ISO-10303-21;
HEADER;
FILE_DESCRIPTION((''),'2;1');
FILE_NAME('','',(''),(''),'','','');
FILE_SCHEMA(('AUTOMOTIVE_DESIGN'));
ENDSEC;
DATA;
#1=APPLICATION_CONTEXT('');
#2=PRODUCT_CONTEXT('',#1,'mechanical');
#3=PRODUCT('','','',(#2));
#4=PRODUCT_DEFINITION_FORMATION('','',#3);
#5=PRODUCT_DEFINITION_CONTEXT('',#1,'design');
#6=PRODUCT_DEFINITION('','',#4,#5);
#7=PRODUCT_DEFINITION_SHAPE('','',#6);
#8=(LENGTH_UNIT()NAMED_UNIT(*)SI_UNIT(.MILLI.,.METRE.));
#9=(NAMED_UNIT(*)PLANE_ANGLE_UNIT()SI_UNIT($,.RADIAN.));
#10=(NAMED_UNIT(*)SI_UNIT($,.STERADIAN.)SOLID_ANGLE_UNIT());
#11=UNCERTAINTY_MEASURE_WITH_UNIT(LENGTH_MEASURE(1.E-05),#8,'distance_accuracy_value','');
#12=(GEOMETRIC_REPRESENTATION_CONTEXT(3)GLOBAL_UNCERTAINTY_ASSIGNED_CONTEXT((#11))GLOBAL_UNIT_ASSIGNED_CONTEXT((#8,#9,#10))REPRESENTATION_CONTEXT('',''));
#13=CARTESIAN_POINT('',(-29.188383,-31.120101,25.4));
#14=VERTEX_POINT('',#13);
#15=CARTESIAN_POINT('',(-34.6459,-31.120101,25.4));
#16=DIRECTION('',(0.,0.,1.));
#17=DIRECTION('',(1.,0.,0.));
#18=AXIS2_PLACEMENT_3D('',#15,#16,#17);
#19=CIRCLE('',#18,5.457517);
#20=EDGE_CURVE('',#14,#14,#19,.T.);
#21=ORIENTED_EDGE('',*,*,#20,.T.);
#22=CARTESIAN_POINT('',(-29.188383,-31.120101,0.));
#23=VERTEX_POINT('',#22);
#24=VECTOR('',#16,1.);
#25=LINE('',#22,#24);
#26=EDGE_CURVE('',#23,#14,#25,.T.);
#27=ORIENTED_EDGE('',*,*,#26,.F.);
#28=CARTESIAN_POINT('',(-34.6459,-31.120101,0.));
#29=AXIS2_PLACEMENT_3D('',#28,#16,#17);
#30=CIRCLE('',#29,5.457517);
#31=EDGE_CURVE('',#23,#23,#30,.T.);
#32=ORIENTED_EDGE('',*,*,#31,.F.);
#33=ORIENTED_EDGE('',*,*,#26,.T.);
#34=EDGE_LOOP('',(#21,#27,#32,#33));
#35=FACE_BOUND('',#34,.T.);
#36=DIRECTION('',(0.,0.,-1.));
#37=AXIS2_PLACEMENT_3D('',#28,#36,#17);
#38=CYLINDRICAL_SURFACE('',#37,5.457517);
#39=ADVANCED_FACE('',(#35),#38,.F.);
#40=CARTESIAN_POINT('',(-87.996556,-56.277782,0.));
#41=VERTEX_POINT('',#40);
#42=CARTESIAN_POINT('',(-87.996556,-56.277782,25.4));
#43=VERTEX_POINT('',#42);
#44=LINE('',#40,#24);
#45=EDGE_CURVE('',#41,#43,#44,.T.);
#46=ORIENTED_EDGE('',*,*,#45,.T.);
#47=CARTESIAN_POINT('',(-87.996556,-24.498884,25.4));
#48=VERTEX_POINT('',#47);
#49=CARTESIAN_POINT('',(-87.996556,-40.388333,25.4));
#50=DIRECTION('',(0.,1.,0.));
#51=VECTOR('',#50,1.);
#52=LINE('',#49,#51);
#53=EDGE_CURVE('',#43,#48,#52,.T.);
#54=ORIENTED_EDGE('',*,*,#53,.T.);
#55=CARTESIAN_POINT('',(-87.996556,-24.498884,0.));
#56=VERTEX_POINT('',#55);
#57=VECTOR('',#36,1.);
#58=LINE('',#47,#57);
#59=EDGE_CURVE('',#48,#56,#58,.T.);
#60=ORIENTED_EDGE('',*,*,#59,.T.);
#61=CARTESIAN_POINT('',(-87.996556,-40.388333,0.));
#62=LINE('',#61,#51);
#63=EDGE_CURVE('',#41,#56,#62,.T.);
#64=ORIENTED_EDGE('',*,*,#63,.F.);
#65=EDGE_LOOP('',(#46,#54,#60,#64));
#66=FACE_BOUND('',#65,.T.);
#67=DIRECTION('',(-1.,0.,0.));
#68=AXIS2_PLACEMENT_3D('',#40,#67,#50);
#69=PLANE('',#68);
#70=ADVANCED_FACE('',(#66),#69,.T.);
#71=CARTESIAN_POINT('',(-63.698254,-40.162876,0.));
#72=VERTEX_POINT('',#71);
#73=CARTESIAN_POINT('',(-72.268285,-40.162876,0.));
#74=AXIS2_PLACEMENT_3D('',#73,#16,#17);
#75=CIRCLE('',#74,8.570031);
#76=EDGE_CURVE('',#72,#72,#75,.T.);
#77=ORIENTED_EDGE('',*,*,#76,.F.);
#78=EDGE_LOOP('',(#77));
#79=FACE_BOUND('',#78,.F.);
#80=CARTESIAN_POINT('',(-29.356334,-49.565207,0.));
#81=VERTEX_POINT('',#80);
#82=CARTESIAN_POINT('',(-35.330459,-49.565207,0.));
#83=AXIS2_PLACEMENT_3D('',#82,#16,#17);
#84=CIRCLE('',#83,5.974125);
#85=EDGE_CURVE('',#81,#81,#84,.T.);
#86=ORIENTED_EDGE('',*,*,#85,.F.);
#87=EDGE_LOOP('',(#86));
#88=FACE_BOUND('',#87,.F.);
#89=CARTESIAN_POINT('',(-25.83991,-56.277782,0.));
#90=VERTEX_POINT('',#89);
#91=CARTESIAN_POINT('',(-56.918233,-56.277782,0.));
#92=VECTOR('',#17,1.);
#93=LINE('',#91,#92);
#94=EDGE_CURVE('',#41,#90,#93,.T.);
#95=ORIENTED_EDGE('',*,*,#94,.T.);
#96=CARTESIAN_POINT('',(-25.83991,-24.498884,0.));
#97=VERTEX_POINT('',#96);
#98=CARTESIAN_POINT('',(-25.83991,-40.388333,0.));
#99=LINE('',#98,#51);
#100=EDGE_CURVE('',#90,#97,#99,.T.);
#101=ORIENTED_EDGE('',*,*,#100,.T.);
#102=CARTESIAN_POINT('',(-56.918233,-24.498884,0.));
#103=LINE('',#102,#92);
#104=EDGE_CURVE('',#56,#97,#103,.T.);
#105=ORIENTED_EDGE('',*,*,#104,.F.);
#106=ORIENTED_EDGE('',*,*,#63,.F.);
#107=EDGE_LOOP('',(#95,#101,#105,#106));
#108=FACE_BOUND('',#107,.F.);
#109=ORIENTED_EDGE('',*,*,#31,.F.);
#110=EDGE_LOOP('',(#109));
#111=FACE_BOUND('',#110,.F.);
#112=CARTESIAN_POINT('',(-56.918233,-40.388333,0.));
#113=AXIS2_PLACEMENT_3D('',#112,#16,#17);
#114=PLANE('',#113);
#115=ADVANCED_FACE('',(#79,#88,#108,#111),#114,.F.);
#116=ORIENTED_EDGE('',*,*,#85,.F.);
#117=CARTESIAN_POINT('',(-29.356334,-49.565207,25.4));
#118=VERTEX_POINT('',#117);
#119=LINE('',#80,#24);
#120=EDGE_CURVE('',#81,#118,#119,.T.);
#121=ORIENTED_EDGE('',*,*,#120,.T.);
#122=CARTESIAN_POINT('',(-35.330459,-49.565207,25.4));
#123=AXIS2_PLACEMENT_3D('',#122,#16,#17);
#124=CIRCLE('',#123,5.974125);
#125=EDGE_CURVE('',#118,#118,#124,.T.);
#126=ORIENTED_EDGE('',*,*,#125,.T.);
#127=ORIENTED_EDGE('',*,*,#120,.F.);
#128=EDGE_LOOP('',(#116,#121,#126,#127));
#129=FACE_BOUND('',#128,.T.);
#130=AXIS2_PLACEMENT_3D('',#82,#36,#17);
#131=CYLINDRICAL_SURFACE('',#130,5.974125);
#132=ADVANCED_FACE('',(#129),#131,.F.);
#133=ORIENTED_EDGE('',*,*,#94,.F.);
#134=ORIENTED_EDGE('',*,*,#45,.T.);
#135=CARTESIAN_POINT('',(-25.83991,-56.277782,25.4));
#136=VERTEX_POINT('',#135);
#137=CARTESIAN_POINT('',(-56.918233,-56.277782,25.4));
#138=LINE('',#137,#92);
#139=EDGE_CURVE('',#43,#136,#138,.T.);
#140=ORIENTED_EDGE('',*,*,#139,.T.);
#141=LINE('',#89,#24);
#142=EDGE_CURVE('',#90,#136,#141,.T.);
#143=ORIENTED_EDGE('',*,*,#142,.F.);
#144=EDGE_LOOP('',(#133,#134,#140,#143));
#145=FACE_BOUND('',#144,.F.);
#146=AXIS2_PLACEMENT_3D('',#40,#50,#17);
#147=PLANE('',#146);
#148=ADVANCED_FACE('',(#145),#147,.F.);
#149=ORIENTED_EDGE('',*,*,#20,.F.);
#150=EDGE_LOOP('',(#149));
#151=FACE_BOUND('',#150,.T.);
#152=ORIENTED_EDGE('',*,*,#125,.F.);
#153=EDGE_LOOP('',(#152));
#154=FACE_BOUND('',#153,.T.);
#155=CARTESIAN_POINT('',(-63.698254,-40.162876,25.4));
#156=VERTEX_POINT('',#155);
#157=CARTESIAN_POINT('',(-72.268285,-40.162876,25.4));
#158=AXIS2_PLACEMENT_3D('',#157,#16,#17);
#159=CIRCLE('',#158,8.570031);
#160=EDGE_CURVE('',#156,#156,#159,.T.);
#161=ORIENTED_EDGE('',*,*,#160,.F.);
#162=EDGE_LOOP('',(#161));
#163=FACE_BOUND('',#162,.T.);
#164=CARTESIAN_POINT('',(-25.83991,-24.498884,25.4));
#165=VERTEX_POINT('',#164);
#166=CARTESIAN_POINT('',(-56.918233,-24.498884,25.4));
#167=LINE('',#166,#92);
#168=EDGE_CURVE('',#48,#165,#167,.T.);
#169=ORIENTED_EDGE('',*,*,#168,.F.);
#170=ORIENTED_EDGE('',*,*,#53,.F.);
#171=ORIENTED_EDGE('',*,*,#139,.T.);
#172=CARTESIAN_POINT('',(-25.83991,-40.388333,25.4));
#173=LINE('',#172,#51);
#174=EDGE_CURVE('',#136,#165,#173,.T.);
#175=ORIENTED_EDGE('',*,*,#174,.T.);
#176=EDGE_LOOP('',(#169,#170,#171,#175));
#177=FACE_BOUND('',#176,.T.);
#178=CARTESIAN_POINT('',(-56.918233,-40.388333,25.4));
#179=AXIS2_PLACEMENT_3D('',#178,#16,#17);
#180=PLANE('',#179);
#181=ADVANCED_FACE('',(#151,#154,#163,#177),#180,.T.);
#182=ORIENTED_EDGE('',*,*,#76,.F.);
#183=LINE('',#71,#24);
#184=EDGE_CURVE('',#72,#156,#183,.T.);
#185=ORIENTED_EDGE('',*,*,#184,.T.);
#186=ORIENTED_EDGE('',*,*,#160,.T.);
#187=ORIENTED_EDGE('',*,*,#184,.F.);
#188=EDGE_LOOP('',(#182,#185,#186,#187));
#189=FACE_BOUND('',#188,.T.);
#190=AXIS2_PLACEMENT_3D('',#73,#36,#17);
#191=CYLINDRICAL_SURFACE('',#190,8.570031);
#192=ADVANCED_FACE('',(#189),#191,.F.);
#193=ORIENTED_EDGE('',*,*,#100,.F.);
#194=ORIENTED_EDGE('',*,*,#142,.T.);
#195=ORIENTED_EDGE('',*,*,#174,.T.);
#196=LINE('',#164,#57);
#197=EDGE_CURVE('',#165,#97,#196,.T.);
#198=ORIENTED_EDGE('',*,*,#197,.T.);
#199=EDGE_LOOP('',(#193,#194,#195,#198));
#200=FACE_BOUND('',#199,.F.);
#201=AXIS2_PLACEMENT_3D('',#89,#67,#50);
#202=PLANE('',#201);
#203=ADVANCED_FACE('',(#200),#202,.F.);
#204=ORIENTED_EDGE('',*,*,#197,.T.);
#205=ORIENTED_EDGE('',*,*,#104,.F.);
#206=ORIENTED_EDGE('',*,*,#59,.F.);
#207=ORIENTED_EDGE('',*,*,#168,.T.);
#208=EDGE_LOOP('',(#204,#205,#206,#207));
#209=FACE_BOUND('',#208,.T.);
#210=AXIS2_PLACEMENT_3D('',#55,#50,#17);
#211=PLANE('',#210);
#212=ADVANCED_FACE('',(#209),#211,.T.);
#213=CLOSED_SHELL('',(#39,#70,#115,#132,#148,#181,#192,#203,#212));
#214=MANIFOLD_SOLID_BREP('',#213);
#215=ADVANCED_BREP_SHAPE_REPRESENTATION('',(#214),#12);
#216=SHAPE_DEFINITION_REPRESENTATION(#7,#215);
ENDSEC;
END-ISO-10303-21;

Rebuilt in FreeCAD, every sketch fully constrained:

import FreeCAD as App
import Part
import Sketcher

V = App.Vector
Q = App.Units.Quantity

doc = App.newDocument("Part")
body = doc.addObject("PartDesign::Body", "Body")

sketch1 = body.newObject("Sketcher::SketchObject", "Sketch")
sketch1.AttachmentSupport = (doc.getObject("XY_Plane"), [""])
sketch1.MapMode = "FlatFace"
sketch1.addGeometry([
    Part.LineSegment(V(-87.996556, -24.498884, 0), V(-87.996556, -56.277782, 0)),
    Part.LineSegment(V(-87.996556, -56.277782, 0), V(-25.83991, -56.277782, 0)),
    Part.LineSegment(V(-25.83991, -56.277782, 0), V(-25.83991, -24.498884, 0)),
    Part.LineSegment(V(-25.83991, -24.498884, 0), V(-87.996556, -24.498884, 0)),
    Part.Circle(V(-35.330459, -49.565207, 0), V(0, 0, 1), 5.974125),
    Part.Circle(V(-72.268285, -40.162876, 0), V(0, 0, 1), 8.570031),
    Part.Circle(V(-34.6459, -31.120101, 0), V(0, 0, 1), 5.457517),
], False)
sketch1.addConstraint([
    Sketcher.Constraint("Coincident", 0, 2, 1, 1),
    Sketcher.Constraint("Coincident", 1, 2, 2, 1),
    Sketcher.Constraint("Coincident", 2, 2, 3, 1),
    Sketcher.Constraint("Coincident", 3, 2, 0, 1),
    Sketcher.Constraint("Vertical", 0),
    Sketcher.Constraint("Horizontal", 1),
    Sketcher.Constraint("Vertical", 2),
    Sketcher.Constraint("Horizontal", 3),
    Sketcher.Constraint("Diameter", 4, 11.94825),
    Sketcher.Constraint("Diameter", 5, 17.140062),
    Sketcher.Constraint("Diameter", 6, 10.915034),
    Sketcher.Constraint("DistanceX", 6, 3, -1, 1, 34.6459),
    Sketcher.Constraint("DistanceY", 6, 3, -1, 1, 31.120101),
    Sketcher.Constraint("DistanceX", 1, 1, 1, 2, 62.156647),
    Sketcher.Constraint("DistanceY", 0, 2, 0, 1, 31.778897),
    Sketcher.Constraint("DistanceX", 4, 3, -1, 1, 35.330459),
    Sketcher.Constraint("DistanceY", 0, 2, -1, 1, 56.277782),
    Sketcher.Constraint("DistanceX", 1, 2, -1, 1, 25.83991),
    Sketcher.Constraint("DistanceY", 4, 3, 5, 3, 9.402331),
    Sketcher.Constraint("DistanceX", 0, 2, 5, 3, 15.728271),
    Sketcher.Constraint("DistanceY", 5, 3, 2, 2, 15.663991),
])
pad1 = body.newObject("PartDesign::Pad", "Pad")
pad1.Profile = sketch1
pad1.Length = Q("0.25 in")

sketch2 = body.newObject("Sketcher::SketchObject", "Sketch001")
sketch2.AttachmentSupport = (doc.getObject("XY_Plane"), [""])
sketch2.MapMode = "FlatFace"
sketch2.addGeometry([
    Part.LineSegment(V(-87.996556, -24.498884, 0), V(-87.996556, -56.277782, 0)),
    Part.LineSegment(V(-87.996556, -56.277782, 0), V(-25.83991, -56.277782, 0)),
    Part.LineSegment(V(-25.83991, -56.277782, 0), V(-25.83991, -24.498884, 0)),
    Part.LineSegment(V(-25.83991, -24.498884, 0), V(-87.996556, -24.498884, 0)),
    Part.Circle(V(-35.330459, -49.565207, 0), V(0, 0, 1), 5.974125),
    Part.Circle(V(-72.268285, -40.162876, 0), V(0, 0, 1), 8.570031),
    Part.Circle(V(-34.6459, -31.120101, 0), V(0, 0, 1), 5.457517),
], False)
sketch2.addConstraint([
    Sketcher.Constraint("Coincident", 0, 2, 1, 1),
    Sketcher.Constraint("Coincident", 1, 2, 2, 1),
    Sketcher.Constraint("Coincident", 2, 2, 3, 1),
    Sketcher.Constraint("Coincident", 3, 2, 0, 1),
    Sketcher.Constraint("Vertical", 0),
    Sketcher.Constraint("Horizontal", 1),
    Sketcher.Constraint("Vertical", 2),
    Sketcher.Constraint("Horizontal", 3),
    Sketcher.Constraint("Diameter", 4, 11.94825),
    Sketcher.Constraint("Diameter", 5, 17.140062),
    Sketcher.Constraint("Diameter", 6, 10.915034),
    Sketcher.Constraint("DistanceX", 6, 3, -1, 1, 34.6459),
    Sketcher.Constraint("DistanceY", 6, 3, -1, 1, 31.120101),
    Sketcher.Constraint("DistanceX", 1, 1, 1, 2, 62.156647),
    Sketcher.Constraint("DistanceY", 0, 2, 0, 1, 31.778897),
    Sketcher.Constraint("DistanceX", 4, 3, -1, 1, 35.330459),
    Sketcher.Constraint("DistanceY", 0, 2, -1, 1, 56.277782),
    Sketcher.Constraint("DistanceX", 1, 2, -1, 1, 25.83991),
    Sketcher.Constraint("DistanceY", 4, 3, 5, 3, 9.402331),
    Sketcher.Constraint("DistanceX", 0, 2, 5, 3, 15.728271),
    Sketcher.Constraint("DistanceY", 5, 3, 2, 2, 15.663991),
])
pad2 = body.newObject("PartDesign::Pad", "Pad001")
pad2.Profile = sketch2
pad2.Length = Q("1 in")

doc.recompute()
